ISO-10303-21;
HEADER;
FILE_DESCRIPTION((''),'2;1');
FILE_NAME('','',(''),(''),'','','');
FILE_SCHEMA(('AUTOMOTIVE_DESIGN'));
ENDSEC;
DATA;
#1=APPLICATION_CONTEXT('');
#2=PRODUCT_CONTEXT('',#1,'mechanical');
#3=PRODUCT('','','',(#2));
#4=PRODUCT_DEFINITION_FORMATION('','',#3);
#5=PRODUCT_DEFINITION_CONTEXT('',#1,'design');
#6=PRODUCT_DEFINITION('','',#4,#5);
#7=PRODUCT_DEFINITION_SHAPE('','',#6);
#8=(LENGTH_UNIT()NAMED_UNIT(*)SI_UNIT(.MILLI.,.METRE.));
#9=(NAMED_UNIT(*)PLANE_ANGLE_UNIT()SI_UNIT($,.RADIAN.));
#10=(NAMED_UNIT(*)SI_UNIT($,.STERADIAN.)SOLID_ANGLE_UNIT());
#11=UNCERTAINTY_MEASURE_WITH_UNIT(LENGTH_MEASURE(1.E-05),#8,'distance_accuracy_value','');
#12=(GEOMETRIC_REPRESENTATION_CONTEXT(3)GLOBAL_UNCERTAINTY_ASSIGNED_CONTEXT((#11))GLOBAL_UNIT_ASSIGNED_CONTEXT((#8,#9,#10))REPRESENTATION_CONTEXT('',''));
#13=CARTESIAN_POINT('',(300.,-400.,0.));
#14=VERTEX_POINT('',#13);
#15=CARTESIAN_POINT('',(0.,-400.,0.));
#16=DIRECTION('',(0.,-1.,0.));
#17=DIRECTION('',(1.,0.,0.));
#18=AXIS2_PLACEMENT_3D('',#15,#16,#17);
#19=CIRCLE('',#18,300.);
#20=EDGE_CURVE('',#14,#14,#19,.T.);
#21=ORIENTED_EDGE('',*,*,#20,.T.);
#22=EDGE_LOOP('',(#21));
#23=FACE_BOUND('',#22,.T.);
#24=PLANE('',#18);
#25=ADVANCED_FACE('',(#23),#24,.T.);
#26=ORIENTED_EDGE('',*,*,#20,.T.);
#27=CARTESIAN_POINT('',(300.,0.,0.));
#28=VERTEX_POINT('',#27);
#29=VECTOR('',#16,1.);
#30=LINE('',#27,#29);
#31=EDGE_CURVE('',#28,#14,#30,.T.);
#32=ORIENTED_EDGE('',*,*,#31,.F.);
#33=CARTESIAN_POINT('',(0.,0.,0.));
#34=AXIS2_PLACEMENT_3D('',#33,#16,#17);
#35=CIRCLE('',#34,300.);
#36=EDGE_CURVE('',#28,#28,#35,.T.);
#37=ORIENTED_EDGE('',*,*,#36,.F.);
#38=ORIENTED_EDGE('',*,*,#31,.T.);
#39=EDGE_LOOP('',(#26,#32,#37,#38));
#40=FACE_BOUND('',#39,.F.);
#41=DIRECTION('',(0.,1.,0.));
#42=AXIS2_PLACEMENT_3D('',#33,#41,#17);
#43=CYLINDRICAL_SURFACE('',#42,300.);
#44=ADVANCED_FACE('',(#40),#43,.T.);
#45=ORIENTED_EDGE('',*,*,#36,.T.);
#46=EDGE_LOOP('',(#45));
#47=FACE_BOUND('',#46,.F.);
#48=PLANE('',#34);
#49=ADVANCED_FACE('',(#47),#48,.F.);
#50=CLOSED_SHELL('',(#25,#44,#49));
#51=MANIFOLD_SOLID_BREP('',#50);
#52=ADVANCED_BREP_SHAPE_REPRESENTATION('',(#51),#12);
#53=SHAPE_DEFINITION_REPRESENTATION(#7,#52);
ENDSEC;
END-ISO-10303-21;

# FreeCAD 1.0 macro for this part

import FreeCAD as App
import Part
import Sketcher
Q = App.Units.Quantity

doc = App.newDocument("Part")
params = doc.addObject("Spreadsheet::Sheet", "Params")
for row, (alias, value) in enumerate([
    ("sketch1_diameter", "600 mm"),
    ("pad1_length", "400 mm"),
], start=1):
    params.set(f"A{row}", alias)
    params.set(f"B{row}", "=" + value)
    params.setAlias(f"B{row}", alias)

body = doc.addObject("PartDesign::Body", "Body")

# Sketch on XZ plane
sketch1 = body.newObject("Sketcher::SketchObject", "Sketch")
sketch1.AttachmentSupport = (doc.getObject("XZ_Plane"), [""])
sketch1.MapMode = "FlatFace"
sketch1.addGeometry(Part.Circle(App.Vector(0, 0, 0), App.Vector(0, 0, 1), 300), False)
sketch1.addConstraint([
    Sketcher.Constraint("Coincident", 0, 3, -1, 1),
    Sketcher.Constraint("Diameter", 0, Q("600 mm")),
])
sketch1.setExpression("Constraints[1]", "Params.sketch1_diameter")
pad1 = body.newObject("PartDesign::Pad", "Pad")
pad1.Profile = sketch1
pad1.setExpression("Length", "Params.pad1_length")

doc.recompute()
